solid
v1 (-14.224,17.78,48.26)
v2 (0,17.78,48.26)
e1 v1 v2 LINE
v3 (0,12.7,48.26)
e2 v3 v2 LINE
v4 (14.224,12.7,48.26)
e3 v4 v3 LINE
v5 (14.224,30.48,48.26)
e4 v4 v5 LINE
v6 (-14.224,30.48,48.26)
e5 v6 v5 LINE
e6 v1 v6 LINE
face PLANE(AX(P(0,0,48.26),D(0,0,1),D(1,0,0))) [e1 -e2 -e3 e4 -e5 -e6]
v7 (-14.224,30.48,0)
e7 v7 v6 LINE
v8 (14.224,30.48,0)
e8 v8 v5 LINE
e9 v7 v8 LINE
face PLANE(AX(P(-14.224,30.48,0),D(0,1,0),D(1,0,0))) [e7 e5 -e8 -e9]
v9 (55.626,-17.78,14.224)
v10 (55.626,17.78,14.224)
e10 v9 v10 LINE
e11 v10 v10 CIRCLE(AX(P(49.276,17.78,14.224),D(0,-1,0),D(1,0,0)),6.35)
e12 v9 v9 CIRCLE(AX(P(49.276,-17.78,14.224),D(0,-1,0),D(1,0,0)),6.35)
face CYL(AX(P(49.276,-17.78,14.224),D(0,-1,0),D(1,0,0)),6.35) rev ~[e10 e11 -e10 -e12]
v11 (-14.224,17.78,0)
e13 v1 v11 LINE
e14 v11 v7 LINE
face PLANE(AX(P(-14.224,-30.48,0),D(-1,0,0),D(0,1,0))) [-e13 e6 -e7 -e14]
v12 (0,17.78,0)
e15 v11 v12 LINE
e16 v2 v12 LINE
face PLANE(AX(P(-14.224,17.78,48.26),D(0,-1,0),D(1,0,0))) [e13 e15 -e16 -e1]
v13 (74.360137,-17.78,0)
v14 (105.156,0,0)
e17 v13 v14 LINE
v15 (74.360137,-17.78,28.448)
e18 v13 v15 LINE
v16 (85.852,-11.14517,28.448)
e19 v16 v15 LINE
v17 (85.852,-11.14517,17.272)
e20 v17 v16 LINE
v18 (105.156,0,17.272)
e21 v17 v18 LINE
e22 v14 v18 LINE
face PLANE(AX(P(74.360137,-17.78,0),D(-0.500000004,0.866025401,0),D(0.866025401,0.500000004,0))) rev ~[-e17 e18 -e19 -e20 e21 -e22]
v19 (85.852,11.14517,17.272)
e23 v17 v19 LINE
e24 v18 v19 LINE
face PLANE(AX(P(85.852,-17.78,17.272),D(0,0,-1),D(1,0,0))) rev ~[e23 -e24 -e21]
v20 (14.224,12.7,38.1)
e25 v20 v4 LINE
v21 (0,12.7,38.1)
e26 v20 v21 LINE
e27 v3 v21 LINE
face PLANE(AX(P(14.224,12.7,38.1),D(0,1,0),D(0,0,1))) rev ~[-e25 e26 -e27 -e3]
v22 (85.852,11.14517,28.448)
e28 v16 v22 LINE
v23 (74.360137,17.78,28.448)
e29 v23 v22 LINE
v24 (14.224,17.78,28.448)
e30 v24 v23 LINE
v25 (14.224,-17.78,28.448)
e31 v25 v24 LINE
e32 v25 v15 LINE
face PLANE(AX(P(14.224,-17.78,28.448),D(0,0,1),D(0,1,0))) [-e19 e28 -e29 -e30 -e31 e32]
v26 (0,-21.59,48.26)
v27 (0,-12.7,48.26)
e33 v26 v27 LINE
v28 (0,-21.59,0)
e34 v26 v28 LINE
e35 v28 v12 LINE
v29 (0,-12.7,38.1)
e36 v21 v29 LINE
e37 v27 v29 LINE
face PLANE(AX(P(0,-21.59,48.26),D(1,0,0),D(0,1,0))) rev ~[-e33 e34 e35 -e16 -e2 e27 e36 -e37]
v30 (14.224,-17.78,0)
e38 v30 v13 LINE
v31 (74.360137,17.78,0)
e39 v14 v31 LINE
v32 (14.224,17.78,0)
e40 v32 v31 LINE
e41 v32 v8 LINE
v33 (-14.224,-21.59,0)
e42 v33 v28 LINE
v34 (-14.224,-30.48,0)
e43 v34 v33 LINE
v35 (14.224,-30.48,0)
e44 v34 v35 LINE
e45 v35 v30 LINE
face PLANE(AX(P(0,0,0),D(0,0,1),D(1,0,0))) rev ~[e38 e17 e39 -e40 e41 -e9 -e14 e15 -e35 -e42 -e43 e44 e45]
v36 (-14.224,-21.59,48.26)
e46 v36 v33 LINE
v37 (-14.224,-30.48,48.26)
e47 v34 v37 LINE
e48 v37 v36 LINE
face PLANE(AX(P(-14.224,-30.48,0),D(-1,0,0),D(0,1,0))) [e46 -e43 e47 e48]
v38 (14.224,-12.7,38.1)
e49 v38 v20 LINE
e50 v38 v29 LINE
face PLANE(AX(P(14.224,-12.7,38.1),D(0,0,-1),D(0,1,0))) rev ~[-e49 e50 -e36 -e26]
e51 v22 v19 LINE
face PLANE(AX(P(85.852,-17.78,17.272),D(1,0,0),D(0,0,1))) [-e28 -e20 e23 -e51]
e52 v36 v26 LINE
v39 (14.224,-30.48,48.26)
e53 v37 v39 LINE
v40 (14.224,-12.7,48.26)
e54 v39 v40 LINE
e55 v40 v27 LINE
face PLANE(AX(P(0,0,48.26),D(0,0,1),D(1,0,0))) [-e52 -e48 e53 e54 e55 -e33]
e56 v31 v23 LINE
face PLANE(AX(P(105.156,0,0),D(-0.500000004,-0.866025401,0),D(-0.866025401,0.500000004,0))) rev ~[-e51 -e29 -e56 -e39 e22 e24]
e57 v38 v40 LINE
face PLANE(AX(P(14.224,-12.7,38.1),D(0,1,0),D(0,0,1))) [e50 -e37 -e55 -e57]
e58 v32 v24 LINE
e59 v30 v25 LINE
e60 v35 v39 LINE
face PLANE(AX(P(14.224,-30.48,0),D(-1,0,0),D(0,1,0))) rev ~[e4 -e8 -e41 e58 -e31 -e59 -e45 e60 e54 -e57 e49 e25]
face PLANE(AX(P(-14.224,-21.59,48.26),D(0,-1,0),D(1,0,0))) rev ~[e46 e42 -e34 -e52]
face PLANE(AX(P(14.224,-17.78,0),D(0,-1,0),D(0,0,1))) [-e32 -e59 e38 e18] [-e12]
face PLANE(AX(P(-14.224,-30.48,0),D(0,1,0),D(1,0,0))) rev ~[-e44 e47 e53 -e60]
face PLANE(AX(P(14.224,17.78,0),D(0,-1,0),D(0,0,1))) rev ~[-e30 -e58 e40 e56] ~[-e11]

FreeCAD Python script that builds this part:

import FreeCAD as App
import Part
import Sketcher
from FreeCAD import Vector
Q = App.Units.Quantity

doc = App.newDocument("Part")
body = doc.addObject("PartDesign::Body", "Body")

# Sketch on XY plane
sketch1 = doc.addObject("Sketcher::SketchObject", "Sketch")
body.addObject(sketch1)
sketch1.AttachmentSupport = (doc.XY_Plane, [""])
sketch1.MapMode = "FlatFace"
sketch1.addGeometry([
    Part.LineSegment(Vector(-14, 30, 0), Vector(-14, -30, 0)),
    Part.LineSegment(Vector(-14, -30, 0), Vector(14, -30, 0)),
    Part.LineSegment(Vector(14, -30, 0), Vector(14, 30, 0)),
    Part.LineSegment(Vector(14, 30, 0), Vector(-14, 30, 0)),
], False)
sketch1.addConstraint([
    Sketcher.Constraint("Coincident", 0, 2, 1, 1),
    Sketcher.Constraint("Coincident", 1, 2, 2, 1),
    Sketcher.Constraint("Coincident", 2, 2, 3, 1),
    Sketcher.Constraint("Coincident", 3, 2, 0, 1),
    Sketcher.Constraint("Vertical", 0),
    Sketcher.Constraint("Horizontal", 1),
    Sketcher.Constraint("Vertical", 2),
    Sketcher.Constraint("Horizontal", 3),
    Sketcher.Constraint("Symmetric", 0, 2, 2, 2, -1, 1),
    Sketcher.Constraint("DistanceY", 0, 2, 0, 1, Q("2.4 in")),
    Sketcher.Constraint("DistanceX", 1, 1, 1, 2, Q("1.12 in")),
])
pad1 = doc.addObject("PartDesign::Pad", "Pad")
body.addObject(pad1)
pad1.Profile = sketch1
pad1.Length = Q("1.9 in")

# Sketch on YZ plane
sketch2 = doc.addObject("Sketcher::SketchObject", "Sketch001")
body.addObject(sketch2)
sketch2.AttachmentSupport = (doc.YZ_Plane, [""])
sketch2.MapMode = "FlatFace"
sketch2.AttachmentOffset = App.Placement(Vector(0, 0, 0.56 * 25.4), App.Rotation())
sketch2.addGeometry([
    Part.LineSegment(Vector(-13, 48, 0), Vector(-13, 38, 0)),
    Part.LineSegment(Vector(-13, 38, 0), Vector(13, 38, 0)),
    Part.LineSegment(Vector(13, 38, 0), Vector(13, 48, 0)),
    Part.LineSegment(Vector(13, 48, 0), Vector(-13, 48, 0)),
], False)
sketch2.addConstraint([
    Sketcher.Constraint("Coincident", 0, 2, 1, 1),
    Sketcher.Constraint("Coincident", 1, 2, 2, 1),
    Sketcher.Constraint("Coincident", 2, 2, 3, 1),
    Sketcher.Constraint("Coincident", 3, 2, 0, 1),
    Sketcher.Constraint("Vertical", 0),
    Sketcher.Constraint("Horizontal", 1),
    Sketcher.Constraint("Vertical", 2),
    Sketcher.Constraint("Horizontal", 3),
    Sketcher.Constraint("DistanceX", 1, 1, 1, 2, Q("1 in")),
    Sketcher.Constraint("DistanceY", 0, 2, 0, 1, Q("0.4 in")),
    Sketcher.Constraint("DistanceX", 0, 2, -1, 1, Q("0.5 in")),
    Sketcher.Constraint("DistanceY", -1, 1, 0, 2, Q("1.5 in")),
])
pocket1 = doc.addObject("PartDesign::Pocket", "Pocket")
body.addObject(pocket1)
pocket1.Profile = sketch2
pocket1.Type = "ThroughAll"

# Sketch on XY plane
sketch3 = doc.addObject("Sketcher::SketchObject", "Sketch002")
body.addObject(sketch3)
sketch3.AttachmentSupport = (doc.XY_Plane, [""])
sketch3.MapMode = "FlatFace"
sketch3.AttachmentOffset = App.Placement(Vector(0, 0, 1.9 * 25.4), App.Rotation())
sketch3.addGeometry([
    Part.LineSegment(Vector(-14, 18, 0), Vector(-14, -22, 0)),
    Part.LineSegment(Vector(-14, -22, 0), Vector(0, -22, 0)),
    Part.LineSegment(Vector(0, -22, 0), Vector(0, 18, 0)),
    Part.LineSegment(Vector(0, 18, 0), Vector(-14, 18, 0)),
], False)
sketch3.addConstraint([
    Sketcher.Constraint("Coincident", 0, 2, 1, 1),
    Sketcher.Constraint("Coincident", 1, 2, 2, 1),
    Sketcher.Constraint("Coincident", 2, 2, 3, 1),
    Sketcher.Constraint("Coincident", 3, 2, 0, 1),
    Sketcher.Constraint("Vertical", 0),
    Sketcher.Constraint("Horizontal", 1),
    Sketcher.Constraint("Vertical", 2),
    Sketcher.Constraint("Horizontal", 3),
    Sketcher.Constraint("PointOnObject", 1, 2, -2),
    Sketcher.Constraint("DistanceX", 1, 1, 1, 2, Q("0.56 in")),
    Sketcher.Constraint("DistanceY", 0, 2, 0, 1, Q("1.55 in")),
    Sketcher.Constraint("DistanceY", -1, 1, 2, 2, Q("0.7 in")),
])
pocket2 = doc.addObject("PartDesign::Pocket", "Pocket001")
body.addObject(pocket2)
pocket2.Profile = sketch3
pocket2.Type = "ThroughAll"

# Sketch on YZ plane
sketch4 = doc.addObject("Sketcher::SketchObject", "Sketch003")
body.addObject(sketch4)
sketch4.AttachmentSupport = (doc.YZ_Plane, [""])
sketch4.MapMode = "FlatFace"
sketch4.AttachmentOffset = App.Placement(Vector(0, 0, 0.56 * 25.4), App.Rotation())
sketch4.addGeometry([
    Part.LineSegment(Vector(-18, 28, 0), Vector(-18, 0, 0)),
    Part.LineSegment(Vector(-18, 0, 0), Vector(18, 0, 0)),
    Part.LineSegment(Vector(18, 0, 0), Vector(18, 28, 0)),
    Part.LineSegment(Vector(18, 28, 0), Vector(-18, 28, 0)),
], False)
sketch4.addConstraint([
    Sketcher.Constraint("Coincident", 0, 2, 1, 1),
    Sketcher.Constraint("Coincident", 1, 2, 2, 1),
    Sketcher.Constraint("Coincident", 2, 2, 3, 1),
    Sketcher.Constraint("Coincident", 3, 2, 0, 1),
    Sketcher.Constraint("Vertical", 0),
    Sketcher.Constraint("Horizontal", 1),
    Sketcher.Constraint("Vertical", 2),
    Sketcher.Constraint("Horizontal", 3),
    Sketcher.Constraint("Symmetric", 0, 2, 1, 2, -1, 1),
    Sketcher.Constraint("DistanceX", 1, 1, 1, 2, Q("1.4 in")),
    Sketcher.Constraint("DistanceY", 0, 2, 0, 1, Q("1.12 in")),
])
pad2 = doc.addObject("PartDesign::Pad", "Pad001")
body.addObject(pad2)
pad2.Profile = sketch4
pad2.Length = Q("3.58 in")

# Sketch on XZ plane
sketch5 = doc.addObject("Sketcher::SketchObject", "Sketch004")
body.addObject(sketch5)
sketch5.AttachmentSupport = (doc.XZ_Plane, [""])
sketch5.MapMode = "FlatFace"
sketch5.AttachmentOffset = App.Placement(Vector(0, 0, 0.7 * 25.4), App.Rotation())
sketch5.addGeometry([
    Part.LineSegment(Vector(86, 28, 0), Vector(86, 17, 0)),
    Part.LineSegment(Vector(86, 17, 0), Vector(105, 17, 0)),
    Part.LineSegment(Vector(105, 17, 0), Vector(105, 28, 0)),
    Part.LineSegment(Vector(105, 28, 0), Vector(86, 28, 0)),
], False)
sketch5.addConstraint([
    Sketcher.Constraint("Coincident", 0, 2, 1, 1),
    Sketcher.Constraint("Coincident", 1, 2, 2, 1),
    Sketcher.Constraint("Coincident", 2, 2, 3, 1),
    Sketcher.Constraint("Coincident", 3, 2, 0, 1),
    Sketcher.Constraint("Vertical", 0),
    Sketcher.Constraint("Horizontal", 1),
    Sketcher.Constraint("Vertical", 2),
    Sketcher.Constraint("Horizontal", 3),
    Sketcher.Constraint("DistanceX", 1, 1, 1, 2, Q("0.76 in")),
    Sketcher.Constraint("DistanceY", 0, 2, 0, 1, Q("0.44 in")),
    Sketcher.Constraint("DistanceX", -1, 1, 0, 2, Q("3.38 in")),
    Sketcher.Constraint("DistanceY", -1, 1, 0, 2, Q("0.68 in")),
])
pocket3 = doc.addObject("PartDesign::Pocket", "Pocket002")
body.addObject(pocket3)
pocket3.Profile = sketch5
pocket3.Type = "ThroughAll"

# Sketch on XY plane
sketch6 = doc.addObject("Sketcher::SketchObject", "Sketch005")
body.addObject(sketch6)
sketch6.AttachmentSupport = (doc.XY_Plane, [""])
sketch6.MapMode = "FlatFace"
sketch6.addGeometry([
    Part.LineSegment(Vector(74, -18, 0), Vector(105, 0, 0)),  # 0
    Part.LineSegment(Vector(105, 0, 0), Vector(105, -18, 0)),  # 1
    Part.LineSegment(Vector(105, -18, 0), Vector(74, -18, 0)),  # 2
    Part.LineSegment(Vector(105, 18, 0), Vector(105, 0, 0)),  # 3
    Part.LineSegment(Vector(105, 0, 0), Vector(74, 18, 0)),  # 4
    Part.LineSegment(Vector(74, 18, 0), Vector(105, 18, 0)),  # 5
], False)
sketch6.addConstraint([
    Sketcher.Constraint("Coincident", 0, 2, 1, 1),
    Sketcher.Constraint("Coincident", 1, 2, 2, 1),
    Sketcher.Constraint("Coincident", 2, 2, 0, 1),
    Sketcher.Constraint("Coincident", 3, 2, 4, 1),
    Sketcher.Constraint("Coincident", 4, 2, 5, 1),
    Sketcher.Constraint("Coincident", 5, 2, 3, 1),
    Sketcher.Constraint("Vertical", 1),
    Sketcher.Constraint("Horizontal", 2),
    Sketcher.Constraint("Vertical", 3),
    Sketcher.Constraint("Horizontal", 5),
    Sketcher.Constraint("Coincident", 3, 2, 0, 2),
    Sketcher.Constraint("Symmetric", 2, 2, 4, 2, -1),
    Sketcher.Constraint("PointOnObject", 0, 2, -1),
    Sketcher.Constraint("DistanceY", 1, 2, 1, 1, Q("0.7 in")),
    Sketcher.Constraint("Angle", 0, Q("30 deg")),
    Sketcher.Constraint("DistanceX", -1, 1, 0, 2, Q("4.14 in")),
])
pocket4 = doc.addObject("PartDesign::Pocket", "Pocket003")
body.addObject(pocket4)
pocket4.Profile = sketch6
pocket4.Type = "ThroughAll"
pocket4.Reversed = True

# Sketch on XZ plane
sketch7 = doc.addObject("Sketcher::SketchObject", "Sketch006")
body.addObject(sketch7)
sketch7.AttachmentSupport = (doc.XZ_Plane, [""])
sketch7.MapMode = "FlatFace"
sketch7.AttachmentOffset = App.Placement(Vector(0, 0, 0.7 * 25.4), App.Rotation())
sketch7.addGeometry(Part.Circle(Vector(49, 14, 0), Vector(0, 0, 1), 6), False)
sketch7.addConstraint([
    Sketcher.Constraint("Diameter", 0, Q("0.5 in")),
    Sketcher.Constraint("DistanceX", -1, 1, 0, 3, Q("1.94 in")),
    Sketcher.Constraint("DistanceY", -1, 1, 0, 3, Q("0.56 in")),
])
pocket5 = doc.addObject("PartDesign::Pocket", "Pocket004")
body.addObject(pocket5)
pocket5.Profile = sketch7
pocket5.Type = "ThroughAll"

doc.recompute()
